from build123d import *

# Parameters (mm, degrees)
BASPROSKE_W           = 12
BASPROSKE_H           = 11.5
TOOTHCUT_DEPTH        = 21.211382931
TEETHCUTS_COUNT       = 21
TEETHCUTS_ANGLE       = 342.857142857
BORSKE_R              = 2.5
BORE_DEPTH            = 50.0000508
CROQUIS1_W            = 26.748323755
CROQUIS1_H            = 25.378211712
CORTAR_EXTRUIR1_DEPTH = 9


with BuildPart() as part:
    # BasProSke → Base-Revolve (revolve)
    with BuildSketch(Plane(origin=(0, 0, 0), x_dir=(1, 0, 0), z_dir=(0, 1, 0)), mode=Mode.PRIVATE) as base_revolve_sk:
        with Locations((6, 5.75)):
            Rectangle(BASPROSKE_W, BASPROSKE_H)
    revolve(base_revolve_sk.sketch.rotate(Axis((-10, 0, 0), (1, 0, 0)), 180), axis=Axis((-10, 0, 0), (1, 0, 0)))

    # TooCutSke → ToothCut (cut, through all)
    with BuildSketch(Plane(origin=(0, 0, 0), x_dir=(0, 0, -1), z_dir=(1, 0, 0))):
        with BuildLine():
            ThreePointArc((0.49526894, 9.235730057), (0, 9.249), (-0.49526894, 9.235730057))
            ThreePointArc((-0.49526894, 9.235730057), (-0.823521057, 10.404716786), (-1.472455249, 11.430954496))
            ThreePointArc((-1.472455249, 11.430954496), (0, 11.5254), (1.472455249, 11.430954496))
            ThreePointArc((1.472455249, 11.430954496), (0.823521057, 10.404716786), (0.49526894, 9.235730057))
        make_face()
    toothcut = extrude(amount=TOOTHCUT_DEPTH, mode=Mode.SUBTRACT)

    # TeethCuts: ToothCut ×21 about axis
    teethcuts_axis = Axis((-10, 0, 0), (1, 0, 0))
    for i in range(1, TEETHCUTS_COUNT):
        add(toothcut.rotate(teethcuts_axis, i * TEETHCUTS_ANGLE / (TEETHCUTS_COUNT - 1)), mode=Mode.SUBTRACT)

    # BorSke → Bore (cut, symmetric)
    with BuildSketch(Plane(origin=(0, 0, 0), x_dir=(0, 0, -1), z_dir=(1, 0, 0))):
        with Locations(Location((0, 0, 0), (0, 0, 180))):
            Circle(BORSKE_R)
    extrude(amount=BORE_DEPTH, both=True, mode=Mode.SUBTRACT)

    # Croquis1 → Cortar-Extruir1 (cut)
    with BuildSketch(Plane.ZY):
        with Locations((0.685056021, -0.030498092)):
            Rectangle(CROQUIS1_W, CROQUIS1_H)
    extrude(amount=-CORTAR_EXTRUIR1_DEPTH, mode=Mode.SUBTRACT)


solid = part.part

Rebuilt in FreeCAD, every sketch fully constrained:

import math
import FreeCAD as App
import Part
import Sketcher

V = App.Vector
Q = App.Units.Quantity

doc = App.newDocument("Part")
body = doc.addObject("PartDesign::Body", "Body")

sketch1 = doc.addObject("Sketcher::SketchObject", "Sketch")
body.addObject(sketch1)
sketch1.AttachmentSupport = (doc.XZ_Plane, [""])
sketch1.MapMode = "FlatFace"
sketch1.addGeometry([
    Part.LineSegment(V(0, -11.5, 0), V(0, 0, 0)),
    Part.LineSegment(V(0, 0, 0), V(12, 0, 0)),
    Part.LineSegment(V(12, 0, 0), V(12, -11.5, 0)),
    Part.LineSegment(V(12, -11.5, 0), V(0, -11.5, 0)),
], False)
sketch1.addConstraint([
    Sketcher.Constraint("Coincident", 0, 2, 1, 1),
    Sketcher.Constraint("Coincident", 1, 2, 2, 1),
    Sketcher.Constraint("Coincident", 2, 2, 3, 1),
    Sketcher.Constraint("Coincident", 3, 2, 0, 1),
    Sketcher.Constraint("Vertical", 0),
    Sketcher.Constraint("Horizontal", 1),
    Sketcher.Constraint("Vertical", 2),
    Sketcher.Constraint("Horizontal", 3),
    Sketcher.Constraint("Coincident", 0, 2, -1, 1),
    Sketcher.Constraint("DistanceX", 1, 1, 1, 2, Q("12 mm")),
    Sketcher.Constraint("DistanceY", 0, 1, 0, 2, Q("11.5 mm")),
])
revolution = doc.addObject("PartDesign::Revolution", "Revolution")
body.addObject(revolution)
revolution.Profile = sketch1
revolution.ReferenceAxis = (sketch1, ["H_Axis"])
revolution.Angle = 360

sketch2 = doc.addObject("Sketcher::SketchObject", "Sketch001")
body.addObject(sketch2)
sketch2.AttachmentSupport = (doc.YZ_Plane, [""])
sketch2.MapMode = "FlatFace"
sketch2.addGeometry([
    Part.ArcOfCircle(Part.Circle(V(0, 0, 0), V(0, 0, 1), 9.249), math.radians(-3.069564), math.radians(3.069564)),
    Part.ArcOfCircle(Part.Circle(V(8.696701, -4.660536, 0), V(0, 0, 1), 4.2), math.radians(49.381997), math.radians(82.626306)),
    Part.ArcOfCircle(Part.Circle(V(0, 0, 0), V(0, 0, 1), 11.5254), math.radians(-7.340021), math.radians(7.340021)),
    Part.ArcOfCircle(Part.Circle(V(8.696701, 4.660536, 0), V(0, 0, 1), 4.2), math.radians(-82.626306), math.radians(-49.381997)),
], False)
sketch2.addConstraint([
    Sketcher.Constraint("Coincident", 0, 1, 1, 2),
    Sketcher.Constraint("Coincident", 1, 1, 2, 1),
    Sketcher.Constraint("Coincident", 2, 2, 3, 2),
    Sketcher.Constraint("Coincident", 3, 1, 0, 2),
    Sketcher.Constraint("Coincident", 0, 3, -1, 1),
    Sketcher.Constraint("Coincident", 2, 3, -1, 1),
    Sketcher.Constraint("Equal", 1, 3),
    Sketcher.Constraint("Symmetric", 1, 3, 3, 3, -1),
    Sketcher.Constraint("Radius", 1, Q("4.2 mm")),
    Sketcher.Constraint("Radius", 0, Q("9.249 mm")),
    Sketcher.Constraint("Radius", 2, Q("11.5254 mm")),
    Sketcher.Constraint("DistanceX", -1, 1, 1, 3, Q("8.696701 mm")),
    Sketcher.Constraint("DistanceX", -1, 1, 0, 1, Q("9.23573 mm")),
])
pocket1 = doc.addObject("PartDesign::Pocket", "Pocket")
body.addObject(pocket1)
pocket1.Profile = sketch2
pocket1.Type = "ThroughAll"
pocket1.Reversed = True
doc.recompute()

polarpattern = doc.addObject("PartDesign::PolarPattern", "PolarPattern")
body.addObject(polarpattern)
polarpattern.Originals = [pocket1]
polarpattern.Axis = (doc.X_Axis, [""])
polarpattern.Angle = 360
polarpattern.Occurrences = 21
body.Tip = polarpattern

sketch3 = doc.addObject("Sketcher::SketchObject", "Sketch002")
body.addObject(sketch3)
sketch3.AttachmentSupport = (doc.YZ_Plane, [""])
sketch3.MapMode = "FlatFace"
sketch3.addGeometry(Part.Circle(V(0, 0, 0), V(0, 0, 1), 2.5), False)
sketch3.addConstraint([
    Sketcher.Constraint("Coincident", 0, 3, -1, 1),
    Sketcher.Constraint("Diameter", 0, Q("5 mm")),
])
pocket2 = doc.addObject("PartDesign::Pocket", "Pocket001")
body.addObject(pocket2)
pocket2.Profile = sketch3
pocket2.Length = 100.000102
pocket2.Midplane = True

sketch4 = doc.addObject("Sketcher::SketchObject", "Sketch003")
body.addObject(sketch4)
sketch4.AttachmentSupport = (doc.YZ_Plane, [""])
sketch4.MapMode = "FlatFace"
sketch4.addGeometry([
    Part.LineSegment(V(12.658608, -12.689106, 0), V(-12.719604, -12.689106, 0)),
    Part.LineSegment(V(-12.719604, -12.689106, 0), V(-12.719604, 14.059218, 0)),
    Part.LineSegment(V(-12.719604, 14.059218, 0), V(12.658608, 14.059218, 0)),
    Part.LineSegment(V(12.658608, 14.059218, 0), V(12.658608, -12.689106, 0)),
], False)
sketch4.addConstraint([
    Sketcher.Constraint("Coincident", 0, 2, 1, 1),
    Sketcher.Constraint("Coincident", 1, 2, 2, 1),
    Sketcher.Constraint("Coincident", 2, 2, 3, 1),
    Sketcher.Constraint("Coincident", 3, 2, 0, 1),
    Sketcher.Constraint("Horizontal", 0),
    Sketcher.Constraint("Vertical", 1),
    Sketcher.Constraint("Horizontal", 2),
    Sketcher.Constraint("Vertical", 3),
    Sketcher.Constraint("DistanceX", 0, 2, 0, 1, Q("25.378212 mm")),
    Sketcher.Constraint("DistanceY", 1, 1, 1, 2, Q("26.748324 mm")),
    Sketcher.Constraint("DistanceX", 0, 2, -1, 1, Q("12.719604 mm")),
    Sketcher.Constraint("DistanceY", 0, 2, -1, 1, Q("12.689106 mm")),
])
pocket3 = doc.addObject("PartDesign::Pocket", "Pocket002")
body.addObject(pocket3)
pocket3.Profile = sketch4
pocket3.Length = 9
pocket3.Reversed = True

doc.recompute()
